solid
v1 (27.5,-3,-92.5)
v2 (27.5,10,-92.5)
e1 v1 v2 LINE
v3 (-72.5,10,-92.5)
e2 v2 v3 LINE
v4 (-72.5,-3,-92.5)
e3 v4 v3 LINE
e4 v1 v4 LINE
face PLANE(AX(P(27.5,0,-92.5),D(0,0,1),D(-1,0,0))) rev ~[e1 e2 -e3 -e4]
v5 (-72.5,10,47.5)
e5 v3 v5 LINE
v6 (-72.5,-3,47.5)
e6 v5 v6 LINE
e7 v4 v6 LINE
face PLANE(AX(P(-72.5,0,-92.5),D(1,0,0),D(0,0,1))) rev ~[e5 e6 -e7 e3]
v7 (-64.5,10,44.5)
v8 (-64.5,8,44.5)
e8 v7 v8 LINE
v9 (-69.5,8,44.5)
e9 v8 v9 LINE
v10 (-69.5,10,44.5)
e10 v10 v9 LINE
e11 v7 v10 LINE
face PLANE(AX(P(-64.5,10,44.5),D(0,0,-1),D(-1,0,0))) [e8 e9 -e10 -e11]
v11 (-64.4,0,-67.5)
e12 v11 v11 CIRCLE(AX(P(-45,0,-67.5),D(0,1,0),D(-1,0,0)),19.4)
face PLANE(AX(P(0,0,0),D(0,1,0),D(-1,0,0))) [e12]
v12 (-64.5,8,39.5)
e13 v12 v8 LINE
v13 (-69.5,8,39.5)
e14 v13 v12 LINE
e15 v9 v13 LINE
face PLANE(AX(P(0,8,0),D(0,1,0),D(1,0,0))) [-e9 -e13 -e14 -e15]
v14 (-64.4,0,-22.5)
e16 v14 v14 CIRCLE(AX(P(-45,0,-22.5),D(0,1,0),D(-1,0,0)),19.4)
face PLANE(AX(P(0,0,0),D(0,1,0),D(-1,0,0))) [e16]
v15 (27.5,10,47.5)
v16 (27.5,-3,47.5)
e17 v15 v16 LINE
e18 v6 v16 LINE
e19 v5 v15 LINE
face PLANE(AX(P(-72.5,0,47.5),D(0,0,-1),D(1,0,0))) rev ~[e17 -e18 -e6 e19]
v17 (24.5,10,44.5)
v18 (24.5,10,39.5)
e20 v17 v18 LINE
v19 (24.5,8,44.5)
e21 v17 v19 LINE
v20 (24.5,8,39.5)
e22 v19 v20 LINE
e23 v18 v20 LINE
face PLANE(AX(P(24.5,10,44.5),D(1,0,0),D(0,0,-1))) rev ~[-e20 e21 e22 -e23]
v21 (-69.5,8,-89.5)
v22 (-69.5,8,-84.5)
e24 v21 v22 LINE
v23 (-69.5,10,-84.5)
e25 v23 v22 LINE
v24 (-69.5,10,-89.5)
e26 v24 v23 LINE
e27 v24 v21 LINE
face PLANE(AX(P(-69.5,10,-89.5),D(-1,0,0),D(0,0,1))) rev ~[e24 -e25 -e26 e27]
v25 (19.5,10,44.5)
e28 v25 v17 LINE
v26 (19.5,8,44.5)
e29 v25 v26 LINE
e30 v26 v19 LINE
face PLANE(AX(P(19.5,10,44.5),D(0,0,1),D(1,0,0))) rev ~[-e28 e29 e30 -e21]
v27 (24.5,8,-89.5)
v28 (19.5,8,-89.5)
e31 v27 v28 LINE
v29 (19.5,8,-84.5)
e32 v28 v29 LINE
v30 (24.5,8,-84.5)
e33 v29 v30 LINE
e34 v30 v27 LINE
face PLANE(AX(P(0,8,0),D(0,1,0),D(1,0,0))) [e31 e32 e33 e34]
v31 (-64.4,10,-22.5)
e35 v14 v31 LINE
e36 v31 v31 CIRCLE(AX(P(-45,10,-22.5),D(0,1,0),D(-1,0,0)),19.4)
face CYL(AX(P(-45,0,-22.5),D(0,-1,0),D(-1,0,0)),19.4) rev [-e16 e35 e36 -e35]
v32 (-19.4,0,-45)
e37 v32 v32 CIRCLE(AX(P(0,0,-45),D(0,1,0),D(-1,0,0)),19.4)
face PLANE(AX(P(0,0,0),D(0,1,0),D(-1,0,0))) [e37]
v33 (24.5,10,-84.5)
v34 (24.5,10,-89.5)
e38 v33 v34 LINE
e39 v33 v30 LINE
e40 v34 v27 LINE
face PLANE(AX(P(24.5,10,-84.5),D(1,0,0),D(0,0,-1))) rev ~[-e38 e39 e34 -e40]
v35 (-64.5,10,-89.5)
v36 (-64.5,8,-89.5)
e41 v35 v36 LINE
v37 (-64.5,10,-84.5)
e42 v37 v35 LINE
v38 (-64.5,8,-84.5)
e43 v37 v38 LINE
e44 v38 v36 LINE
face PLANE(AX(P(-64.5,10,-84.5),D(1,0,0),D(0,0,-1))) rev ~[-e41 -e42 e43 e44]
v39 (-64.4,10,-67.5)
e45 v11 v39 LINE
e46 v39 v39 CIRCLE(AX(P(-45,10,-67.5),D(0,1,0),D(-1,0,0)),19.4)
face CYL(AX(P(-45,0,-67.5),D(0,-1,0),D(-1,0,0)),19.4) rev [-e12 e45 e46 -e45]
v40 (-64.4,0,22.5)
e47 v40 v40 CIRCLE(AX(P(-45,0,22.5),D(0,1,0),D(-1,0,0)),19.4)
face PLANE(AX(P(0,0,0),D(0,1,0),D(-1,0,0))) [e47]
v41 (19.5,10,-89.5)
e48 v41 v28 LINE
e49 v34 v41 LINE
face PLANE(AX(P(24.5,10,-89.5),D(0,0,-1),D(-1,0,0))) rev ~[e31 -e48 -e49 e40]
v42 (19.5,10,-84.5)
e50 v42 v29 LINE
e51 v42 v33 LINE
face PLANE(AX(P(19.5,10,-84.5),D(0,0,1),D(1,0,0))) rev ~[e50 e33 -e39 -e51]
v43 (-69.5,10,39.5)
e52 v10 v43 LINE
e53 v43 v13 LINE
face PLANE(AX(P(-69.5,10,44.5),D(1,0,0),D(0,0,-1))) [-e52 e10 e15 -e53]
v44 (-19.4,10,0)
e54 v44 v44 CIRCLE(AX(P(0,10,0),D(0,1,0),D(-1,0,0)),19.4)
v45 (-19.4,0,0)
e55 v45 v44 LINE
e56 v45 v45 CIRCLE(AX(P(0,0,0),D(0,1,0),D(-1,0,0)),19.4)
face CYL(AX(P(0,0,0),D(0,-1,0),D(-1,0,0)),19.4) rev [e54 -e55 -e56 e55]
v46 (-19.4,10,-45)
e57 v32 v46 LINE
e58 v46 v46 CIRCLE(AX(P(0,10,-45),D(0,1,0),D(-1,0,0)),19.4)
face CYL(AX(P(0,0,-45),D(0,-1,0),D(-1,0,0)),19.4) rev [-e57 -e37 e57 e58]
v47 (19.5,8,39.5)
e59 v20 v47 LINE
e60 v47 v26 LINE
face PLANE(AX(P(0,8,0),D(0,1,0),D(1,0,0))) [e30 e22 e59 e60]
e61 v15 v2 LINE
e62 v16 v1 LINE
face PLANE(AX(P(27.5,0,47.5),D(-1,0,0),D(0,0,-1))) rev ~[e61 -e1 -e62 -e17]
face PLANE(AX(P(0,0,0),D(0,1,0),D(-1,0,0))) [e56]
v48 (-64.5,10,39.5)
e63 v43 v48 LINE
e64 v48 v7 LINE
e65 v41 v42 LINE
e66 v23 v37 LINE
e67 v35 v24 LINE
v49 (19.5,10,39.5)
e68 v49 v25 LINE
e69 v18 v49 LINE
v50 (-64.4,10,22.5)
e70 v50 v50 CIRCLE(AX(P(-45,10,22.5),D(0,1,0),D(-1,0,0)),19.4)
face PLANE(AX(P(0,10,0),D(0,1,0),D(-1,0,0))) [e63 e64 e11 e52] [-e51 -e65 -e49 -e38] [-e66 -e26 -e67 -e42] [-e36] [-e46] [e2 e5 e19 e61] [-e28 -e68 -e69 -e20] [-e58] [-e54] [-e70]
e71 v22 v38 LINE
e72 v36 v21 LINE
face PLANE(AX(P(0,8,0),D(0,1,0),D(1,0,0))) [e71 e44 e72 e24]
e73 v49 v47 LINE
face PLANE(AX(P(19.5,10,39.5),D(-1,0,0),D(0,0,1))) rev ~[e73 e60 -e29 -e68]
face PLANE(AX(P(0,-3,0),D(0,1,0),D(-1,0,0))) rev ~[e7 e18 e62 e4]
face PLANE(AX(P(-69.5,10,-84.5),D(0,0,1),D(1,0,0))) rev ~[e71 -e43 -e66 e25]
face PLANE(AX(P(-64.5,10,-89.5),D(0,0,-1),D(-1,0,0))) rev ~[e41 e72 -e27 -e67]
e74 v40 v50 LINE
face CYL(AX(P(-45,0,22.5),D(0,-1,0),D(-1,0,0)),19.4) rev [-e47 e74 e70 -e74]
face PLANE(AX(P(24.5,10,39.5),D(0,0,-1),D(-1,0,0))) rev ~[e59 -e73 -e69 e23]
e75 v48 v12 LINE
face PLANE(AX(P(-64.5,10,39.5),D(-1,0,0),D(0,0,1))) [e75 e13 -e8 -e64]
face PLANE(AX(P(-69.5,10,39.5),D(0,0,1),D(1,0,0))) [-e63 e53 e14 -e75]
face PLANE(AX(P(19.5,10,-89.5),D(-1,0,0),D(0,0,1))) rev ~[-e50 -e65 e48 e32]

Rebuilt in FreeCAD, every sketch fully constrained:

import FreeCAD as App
import Part
import Sketcher

V = App.Vector
Q = App.Units.Quantity

doc = App.newDocument("Part")
body = doc.addObject("PartDesign::Body", "Body")

sketch1 = doc.addObject("Sketcher::SketchObject", "Sketch")
body.addObject(sketch1)
sketch1.AttachmentSupport = (doc.XZ_Plane, [""])
sketch1.MapMode = "FlatFace"
sketch1.addGeometry(Part.LineSegment(V(28, 48, 0), V(28, -92, 0)), False)
sketch1.addGeometry(Part.LineSegment(V(28, -92, 0), V(-72, -92, 0)), False)
sketch1.addGeometry(Part.LineSegment(V(-72, -92, 0), V(-72, 48, 0)), False)
sketch1.addGeometry(Part.LineSegment(V(-72, 48, 0), V(28, 48, 0)), False)
sketch1.addGeometry(Part.Circle(V(0, -45, 0), V(0, 0, 1), 19), False)
sketch1.addGeometry(Part.Circle(V(-45, -68, 0), V(0, 0, 1), 19), False)
sketch1.addGeometry(Part.Circle(V(0, 0, 0), V(0, 0, 1), 19), False)
sketch1.addGeometry(Part.Circle(V(-45, -22, 0), V(0, 0, 1), 19), False)
sketch1.addGeometry(Part.Circle(V(-45, 22, 0), V(0, 0, 1), 19), False)
sketch1.addConstraint(Sketcher.Constraint("Coincident", 0, 2, 1, 1))
sketch1.addConstraint(Sketcher.Constraint("Coincident", 1, 2, 2, 1))
sketch1.addConstraint(Sketcher.Constraint("Coincident", 2, 2, 3, 1))
sketch1.addConstraint(Sketcher.Constraint("Coincident", 3, 2, 0, 1))
sketch1.addConstraint(Sketcher.Constraint("Vertical", 0))
sketch1.addConstraint(Sketcher.Constraint("Horizontal", 1))
sketch1.addConstraint(Sketcher.Constraint("Vertical", 2))
sketch1.addConstraint(Sketcher.Constraint("Horizontal", 3))
sketch1.addConstraint(Sketcher.Constraint("Coincident", 6, 3, -1, 1))
sketch1.addConstraint(Sketcher.Constraint("Equal", 4, 5))
sketch1.addConstraint(Sketcher.Constraint("Equal", 5, 6))
sketch1.addConstraint(Sketcher.Constraint("Equal", 6, 7))
sketch1.addConstraint(Sketcher.Constraint("Equal", 7, 8))
sketch1.addConstraint(Sketcher.Constraint("Symmetric", 7, 3, 8, 3, -1))
sketch1.addConstraint(Sketcher.Constraint("PointOnObject", 4, 3, -2))
sketch1.addConstraint(Sketcher.Constraint("Vertical", 5, 3, 7, 3))
sketch1.addConstraint(Sketcher.Constraint("Diameter", 4, Q("38.8 mm")))
sketch1.addConstraint(Sketcher.Constraint("DistanceY", 4, 3, -1, 1, Q("45 mm")))
sketch1.addConstraint(Sketcher.Constraint("DistanceX", 5, 3, -1, 1, Q("45 mm")))
sketch1.addConstraint(Sketcher.Constraint("DistanceY", 5, 3, 7, 3, Q("45 mm")))
sketch1.addConstraint(Sketcher.Constraint("DistanceY", 7, 3, 8, 3, Q("45 mm")))
sketch1.addConstraint(Sketcher.Constraint("DistanceY", 0, 2, 7, 3, Q("70 mm")))
sketch1.addConstraint(Sketcher.Constraint("DistanceY", 7, 3, 2, 2, Q("70 mm")))
sketch1.addConstraint(Sketcher.Constraint("DistanceX", 1, 2, 1, 1, Q("100 mm")))
sketch1.addConstraint(Sketcher.Constraint("DistanceX", -1, 1, 0, 2, Q("27.5 mm")))
pad1 = doc.addObject("PartDesign::Pad", "Pad")
body.addObject(pad1)
pad1.Profile = sketch1
pad1.Length = 10
pad1.Reversed = True

sketch2 = doc.addObject("Sketcher::SketchObject", "Sketch001")
body.addObject(sketch2)
sketch2.AttachmentSupport = (doc.XZ_Plane, [""])
sketch2.MapMode = "FlatFace"
sketch2.addGeometry(Part.LineSegment(V(28, 48, 0), V(28, -92, 0)), False)
sketch2.addGeometry(Part.LineSegment(V(28, -92, 0), V(-72, -92, 0)), False)
sketch2.addGeometry(Part.LineSegment(V(-72, -92, 0), V(-72, 48, 0)), False)
sketch2.addGeometry(Part.LineSegment(V(-72, 48, 0), V(28, 48, 0)), False)
sketch2.addConstraint(Sketcher.Constraint("Coincident", 0, 2, 1, 1))
sketch2.addConstraint(Sketcher.Constraint("Coincident", 1, 2, 2, 1))
sketch2.addConstraint(Sketcher.Constraint("Coincident", 2, 2, 3, 1))
sketch2.addConstraint(Sketcher.Constraint("Coincident", 3, 2, 0, 1))
sketch2.addConstraint(Sketcher.Constraint("Vertical", 0))
sketch2.addConstraint(Sketcher.Constraint("Horizontal", 1))
sketch2.addConstraint(Sketcher.Constraint("Vertical", 2))
sketch2.addConstraint(Sketcher.Constraint("Horizontal", 3))
sketch2.addConstraint(Sketcher.Constraint("DistanceX", 1, 2, 1, 1, Q("100 mm")))
sketch2.addConstraint(Sketcher.Constraint("DistanceY", 0, 2, 0, 1, Q("140 mm")))
sketch2.addConstraint(Sketcher.Constraint("DistanceX", -1, 1, 0, 2, Q("27.5 mm")))
sketch2.addConstraint(Sketcher.Constraint("DistanceY", 0, 2, -1, 1, Q("92.5 mm")))
pad2 = doc.addObject("PartDesign::Pad", "Pad001")
body.addObject(pad2)
pad2.Profile = sketch2
pad2.Length = 3

sketch3 = doc.addObject("Sketcher::SketchObject", "Sketch002")
body.addObject(sketch3)
sketch3.AttachmentSupport = (doc.XZ_Plane, [""])
sketch3.MapMode = "FlatFace"
sketch3.AttachmentOffset = App.Placement(V(0, 0, -10), App.Rotation())
sketch3.addGeometry(Part.LineSegment(V(24, -84, 0), V(24, -90, 0)), False)
sketch3.addGeometry(Part.LineSegment(V(24, -90, 0), V(20, -90, 0)), False)
sketch3.addGeometry(Part.LineSegment(V(20, -90, 0), V(20, -84, 0)), False)
sketch3.addGeometry(Part.LineSegment(V(20, -84, 0), V(24, -84, 0)), False)
sketch3.addGeometry(Part.LineSegment(V(24, 44, 0), V(24, 40, 0)), False)
sketch3.addGeometry(Part.LineSegment(V(24, 40, 0), V(20, 40, 0)), False)
sketch3.addGeometry(Part.LineSegment(V(20, 40, 0), V(20, 44, 0)), False)
sketch3.addGeometry(Part.LineSegment(V(20, 44, 0), V(24, 44, 0)), False)
sketch3.addGeometry(Part.LineSegment(V(-70, 44, 0), V(-64, 44, 0)), False)
sketch3.addGeometry(Part.LineSegment(V(-64, 44, 0), V(-64, 40, 0)), False)
sketch3.addGeometry(Part.LineSegment(V(-64, 40, 0), V(-70, 40, 0)), False)
sketch3.addGeometry(Part.LineSegment(V(-70, 40, 0), V(-70, 44, 0)), False)
sketch3.addGeometry(Part.LineSegment(V(-64, -84, 0), V(-64, -90, 0)), False)
sketch3.addGeometry(Part.LineSegment(V(-64, -90, 0), V(-70, -90, 0)), False)
sketch3.addGeometry(Part.LineSegment(V(-70, -90, 0), V(-70, -84, 0)), False)
sketch3.addGeometry(Part.LineSegment(V(-70, -84, 0), V(-64, -84, 0)), False)
sketch3.addConstraint(Sketcher.Constraint("Coincident", 0, 2, 1, 1))
sketch3.addConstraint(Sketcher.Constraint("Coincident", 1, 2, 2, 1))
sketch3.addConstraint(Sketcher.Constraint("Coincident", 2, 2, 3, 1))
sketch3.addConstraint(Sketcher.Constraint("Coincident", 3, 2, 0, 1))
sketch3.addConstraint(Sketcher.Constraint("Coincident", 4, 2, 5, 1))
sketch3.addConstraint(Sketcher.Constraint("Coincident", 5, 2, 6, 1))
sketch3.addConstraint(Sketcher.Constraint("Coincident", 6, 2, 7, 1))
sketch3.addConstraint(Sketcher.Constraint("Coincident", 7, 2, 4, 1))
sketch3.addConstraint(Sketcher.Constraint("Coincident", 8, 2, 9, 1))
sketch3.addConstraint(Sketcher.Constraint("Coincident", 9, 2, 10, 1))
sketch3.addConstraint(Sketcher.Constraint("Coincident", 10, 2, 11, 1))
sketch3.addConstraint(Sketcher.Constraint("Coincident", 11, 2, 8, 1))
sketch3.addConstraint(Sketcher.Constraint("Coincident", 12, 2, 13, 1))
sketch3.addConstraint(Sketcher.Constraint("Coincident", 13, 2, 14, 1))
sketch3.addConstraint(Sketcher.Constraint("Coincident", 14, 2, 15, 1))
sketch3.addConstraint(Sketcher.Constraint("Coincident", 15, 2, 12, 1))
sketch3.addConstraint(Sketcher.Constraint("Vertical", 0))
sketch3.addConstraint(Sketcher.Constraint("Horizontal", 1))
sketch3.addConstraint(Sketcher.Constraint("Vertical", 2))
sketch3.addConstraint(Sketcher.Constraint("Horizontal", 3))
sketch3.addConstraint(Sketcher.Constraint("Vertical", 4))
sketch3.addConstraint(Sketcher.Constraint("Horizontal", 5))
sketch3.addConstraint(Sketcher.Constraint("Vertical", 6))
sketch3.addConstraint(Sketcher.Constraint("Horizontal", 7))
sketch3.addConstraint(Sketcher.Constraint("Horizontal", 8))
sketch3.addConstraint(Sketcher.Constraint("Vertical", 9))
sketch3.addConstraint(Sketcher.Constraint("Horizontal", 10))
sketch3.addConstraint(Sketcher.Constraint("Vertical", 11))
sketch3.addConstraint(Sketcher.Constraint("Vertical", 12))
sketch3.addConstraint(Sketcher.Constraint("Horizontal", 13))
sketch3.addConstraint(Sketcher.Constraint("Vertical", 14))
sketch3.addConstraint(Sketcher.Constraint("Horizontal", 15))
sketch3.addConstraint(Sketcher.Constraint("Horizontal", 7, 2, 8, 2))
sketch3.addConstraint(Sketcher.Constraint("Horizontal", 5, 2, 9, 2))
sketch3.addConstraint(Sketcher.Constraint("Horizontal", 1, 2, 12, 2))
sketch3.addConstraint(Sketcher.Constraint("Horizontal", 3, 2, 14, 2))
sketch3.addConstraint(Sketcher.Constraint("Vertical", 3, 2, 4, 2))
sketch3.addConstraint(Sketcher.Constraint("Vertical", 2, 2, 5, 2))
sketch3.addConstraint(Sketcher.Constraint("Vertical", 9, 2, 12, 2))
sketch3.addConstraint(Sketcher.Constraint("Vertical", 11, 2, 13, 2))
sketch3.addConstraint(Sketcher.Constraint("Equal", 7, 8))
sketch3.addConstraint(Sketcher.Constraint("Equal", 15, 0))
sketch3.addConstraint(Sketcher.Constraint("Equal", 2, 4))
sketch3.addConstraint(Sketcher.Constraint("DistanceX", 1, 2, 1, 1, Q("5 mm")))
sketch3.addConstraint(Sketcher.Constraint("DistanceY", 3, 2, 4, 2, Q("124 mm")))
sketch3.addConstraint(Sketcher.Constraint("DistanceX", 8, 2, 6, 2, Q("84 mm")))
sketch3.addConstraint(Sketcher.Constraint("DistanceX", -1, 1, 0, 2, Q("24.5 mm")))
sketch3.addConstraint(Sketcher.Constraint("DistanceY", 0, 2, -1, 1, Q("89.5 mm")))
pocket1 = doc.addObject("PartDesign::Pocket", "Pocket")
body.addObject(pocket1)
pocket1.Profile = sketch3
pocket1.Length = 2
pocket1.Reversed = True

doc.recompute()
